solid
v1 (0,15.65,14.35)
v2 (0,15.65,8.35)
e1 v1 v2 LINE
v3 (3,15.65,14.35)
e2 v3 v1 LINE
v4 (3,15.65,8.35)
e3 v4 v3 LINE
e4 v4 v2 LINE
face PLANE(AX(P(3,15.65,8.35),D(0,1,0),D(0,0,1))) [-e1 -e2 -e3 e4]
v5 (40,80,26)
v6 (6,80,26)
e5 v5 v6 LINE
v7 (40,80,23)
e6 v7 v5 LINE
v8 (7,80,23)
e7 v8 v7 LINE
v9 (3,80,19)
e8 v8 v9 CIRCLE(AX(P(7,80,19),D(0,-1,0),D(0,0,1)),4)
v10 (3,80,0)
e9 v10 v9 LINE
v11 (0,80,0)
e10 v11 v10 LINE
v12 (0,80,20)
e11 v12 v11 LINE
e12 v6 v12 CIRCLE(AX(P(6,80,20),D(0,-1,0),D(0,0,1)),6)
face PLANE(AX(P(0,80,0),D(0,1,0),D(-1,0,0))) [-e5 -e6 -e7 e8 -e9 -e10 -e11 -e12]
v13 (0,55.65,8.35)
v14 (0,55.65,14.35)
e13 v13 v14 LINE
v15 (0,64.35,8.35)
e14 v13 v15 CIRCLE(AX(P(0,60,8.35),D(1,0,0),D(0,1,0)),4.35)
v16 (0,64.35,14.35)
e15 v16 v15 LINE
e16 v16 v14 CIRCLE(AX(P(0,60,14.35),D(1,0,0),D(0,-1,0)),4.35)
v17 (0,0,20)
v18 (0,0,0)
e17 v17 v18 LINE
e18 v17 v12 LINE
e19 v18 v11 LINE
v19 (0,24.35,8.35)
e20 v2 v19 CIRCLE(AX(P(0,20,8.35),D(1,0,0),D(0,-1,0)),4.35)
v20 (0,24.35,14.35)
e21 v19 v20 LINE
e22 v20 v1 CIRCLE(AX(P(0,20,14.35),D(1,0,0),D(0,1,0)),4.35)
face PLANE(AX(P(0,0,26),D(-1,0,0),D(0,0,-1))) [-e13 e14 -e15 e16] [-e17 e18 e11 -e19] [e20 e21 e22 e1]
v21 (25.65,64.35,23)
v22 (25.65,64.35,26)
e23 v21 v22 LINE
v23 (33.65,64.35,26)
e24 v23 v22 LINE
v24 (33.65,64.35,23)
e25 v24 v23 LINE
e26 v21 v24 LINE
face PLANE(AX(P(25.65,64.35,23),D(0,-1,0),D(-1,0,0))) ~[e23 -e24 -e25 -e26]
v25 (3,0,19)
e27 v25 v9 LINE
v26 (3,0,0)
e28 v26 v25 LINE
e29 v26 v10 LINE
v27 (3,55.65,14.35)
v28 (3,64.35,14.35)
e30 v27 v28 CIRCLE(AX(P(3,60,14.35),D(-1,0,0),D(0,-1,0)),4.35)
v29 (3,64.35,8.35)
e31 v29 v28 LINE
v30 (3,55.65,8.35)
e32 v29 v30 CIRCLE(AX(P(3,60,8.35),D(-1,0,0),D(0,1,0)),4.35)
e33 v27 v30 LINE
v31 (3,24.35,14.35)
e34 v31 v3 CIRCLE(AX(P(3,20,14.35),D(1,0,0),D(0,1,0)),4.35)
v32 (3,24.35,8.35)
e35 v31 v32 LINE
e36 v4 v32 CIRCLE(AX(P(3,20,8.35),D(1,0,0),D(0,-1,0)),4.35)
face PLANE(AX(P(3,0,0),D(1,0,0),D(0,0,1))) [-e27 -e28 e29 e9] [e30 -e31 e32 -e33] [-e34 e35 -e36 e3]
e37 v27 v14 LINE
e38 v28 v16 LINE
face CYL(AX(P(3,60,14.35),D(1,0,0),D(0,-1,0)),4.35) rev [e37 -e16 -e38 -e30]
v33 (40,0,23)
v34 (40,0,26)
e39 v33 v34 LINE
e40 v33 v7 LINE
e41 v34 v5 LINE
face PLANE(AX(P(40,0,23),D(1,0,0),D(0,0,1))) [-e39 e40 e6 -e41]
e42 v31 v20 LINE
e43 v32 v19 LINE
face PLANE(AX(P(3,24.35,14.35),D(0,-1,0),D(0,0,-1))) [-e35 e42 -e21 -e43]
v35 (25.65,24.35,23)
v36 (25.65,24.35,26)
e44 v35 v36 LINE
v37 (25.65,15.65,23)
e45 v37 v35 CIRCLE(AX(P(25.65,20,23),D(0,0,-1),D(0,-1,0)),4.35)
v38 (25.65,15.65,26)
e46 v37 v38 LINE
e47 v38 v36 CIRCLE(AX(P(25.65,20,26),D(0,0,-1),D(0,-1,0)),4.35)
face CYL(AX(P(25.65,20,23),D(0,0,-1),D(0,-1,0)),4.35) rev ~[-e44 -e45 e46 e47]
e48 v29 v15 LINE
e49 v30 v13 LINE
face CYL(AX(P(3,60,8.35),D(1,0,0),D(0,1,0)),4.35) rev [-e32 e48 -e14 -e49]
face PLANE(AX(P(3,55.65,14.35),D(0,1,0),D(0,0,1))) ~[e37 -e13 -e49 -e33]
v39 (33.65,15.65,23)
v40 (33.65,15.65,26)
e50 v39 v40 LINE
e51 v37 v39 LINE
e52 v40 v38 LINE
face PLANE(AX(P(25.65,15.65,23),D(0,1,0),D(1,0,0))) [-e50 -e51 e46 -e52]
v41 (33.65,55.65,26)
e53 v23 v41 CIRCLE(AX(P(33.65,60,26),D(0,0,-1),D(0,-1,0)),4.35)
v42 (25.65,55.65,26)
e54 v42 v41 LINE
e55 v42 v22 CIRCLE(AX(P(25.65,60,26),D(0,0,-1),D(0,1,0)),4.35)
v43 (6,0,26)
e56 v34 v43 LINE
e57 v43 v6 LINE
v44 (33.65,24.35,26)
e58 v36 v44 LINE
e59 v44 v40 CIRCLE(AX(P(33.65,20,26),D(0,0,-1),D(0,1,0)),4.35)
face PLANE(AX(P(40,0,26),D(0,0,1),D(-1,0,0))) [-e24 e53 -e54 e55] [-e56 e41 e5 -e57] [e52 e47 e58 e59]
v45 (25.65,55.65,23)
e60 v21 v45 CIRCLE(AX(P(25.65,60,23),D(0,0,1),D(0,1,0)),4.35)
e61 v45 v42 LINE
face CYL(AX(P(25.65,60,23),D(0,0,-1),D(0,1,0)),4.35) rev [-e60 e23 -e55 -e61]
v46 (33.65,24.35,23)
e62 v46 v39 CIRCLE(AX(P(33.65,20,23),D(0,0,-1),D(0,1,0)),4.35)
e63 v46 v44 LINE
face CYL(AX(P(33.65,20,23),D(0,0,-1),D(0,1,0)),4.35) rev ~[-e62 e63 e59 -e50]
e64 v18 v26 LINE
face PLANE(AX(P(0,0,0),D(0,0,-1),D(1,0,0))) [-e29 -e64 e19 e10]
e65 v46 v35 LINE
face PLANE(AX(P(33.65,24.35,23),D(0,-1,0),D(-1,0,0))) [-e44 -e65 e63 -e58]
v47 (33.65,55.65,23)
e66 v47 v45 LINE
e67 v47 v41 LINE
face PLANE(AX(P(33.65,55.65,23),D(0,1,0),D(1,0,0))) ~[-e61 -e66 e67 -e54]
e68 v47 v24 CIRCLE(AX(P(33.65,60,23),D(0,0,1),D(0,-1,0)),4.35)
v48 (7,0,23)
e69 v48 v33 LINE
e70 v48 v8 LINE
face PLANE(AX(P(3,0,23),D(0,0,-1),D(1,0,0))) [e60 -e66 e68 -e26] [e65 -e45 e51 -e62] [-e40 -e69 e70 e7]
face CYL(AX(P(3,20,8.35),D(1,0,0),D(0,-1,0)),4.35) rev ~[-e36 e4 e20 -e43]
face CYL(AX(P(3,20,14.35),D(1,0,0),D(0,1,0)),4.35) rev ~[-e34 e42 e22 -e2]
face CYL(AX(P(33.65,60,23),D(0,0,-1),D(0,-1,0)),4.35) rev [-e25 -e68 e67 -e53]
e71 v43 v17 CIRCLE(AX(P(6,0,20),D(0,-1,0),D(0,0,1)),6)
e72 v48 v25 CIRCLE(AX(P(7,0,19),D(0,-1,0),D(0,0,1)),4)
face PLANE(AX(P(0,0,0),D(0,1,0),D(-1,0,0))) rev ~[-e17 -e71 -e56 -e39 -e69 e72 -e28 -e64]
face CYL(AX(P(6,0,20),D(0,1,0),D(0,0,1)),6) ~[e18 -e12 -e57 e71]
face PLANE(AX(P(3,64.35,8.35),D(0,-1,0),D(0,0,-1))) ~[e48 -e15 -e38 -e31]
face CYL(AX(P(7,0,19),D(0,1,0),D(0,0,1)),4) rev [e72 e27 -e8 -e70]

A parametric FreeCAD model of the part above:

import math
import FreeCAD as App
import Part
import Sketcher
Q = App.Units.Quantity


def edges_at(feature, points):
    """Names of the edges that pass closest to the given points."""
    edges = feature.Shape.Edges
    near = lambda p: min(range(len(edges)), key=lambda i: edges[i].distToShape(Part.Vertex(*p))[0])
    return sorted({f"Edge{near(p) + 1}" for p in points})


def add_polygon(sketch, points):
    """Adds a closed chain of lines whose ends are joined by coincident constraints."""
    first, n = sketch.GeometryCount, len(points)
    for a, b in zip(points, points[1:] + points[:1]):
        sketch.addGeometry(Part.LineSegment(App.Vector(*a, 0), App.Vector(*b, 0)), False)
    for i in range(n):
        sketch.addConstraint(Sketcher.Constraint("Coincident", first + i, 2, first + (i + 1) % n, 1))

doc = App.newDocument("Part")
body = doc.addObject("PartDesign::Body", "Body")

# Sketch on XZ plane
sketch1 = body.newObject("Sketcher::SketchObject", "Sketch")
sketch1.AttachmentSupport = (doc.getObject("XZ_Plane"), [""])
sketch1.MapMode = "FlatFace"
add_polygon(sketch1, [(3, 0), (0, 0), (0, 26), (40, 26), (40, 23), (3, 23)])  # lines 0-5
sketch1.addConstraint(Sketcher.Constraint("Horizontal", 0))
sketch1.addConstraint(Sketcher.Constraint("Vertical", 1))
sketch1.addConstraint(Sketcher.Constraint("Horizontal", 2))
sketch1.addConstraint(Sketcher.Constraint("Vertical", 3))
sketch1.addConstraint(Sketcher.Constraint("Horizontal", 4))
sketch1.addConstraint(Sketcher.Constraint("Vertical", 5))
sketch1.addConstraint(Sketcher.Constraint("Coincident", 0, 2, -1, 1))
sketch1.addConstraint(Sketcher.Constraint("Equal", 0, 3))
sketch1.addConstraint(Sketcher.Constraint("DistanceX", 0, 2, 0, 1, Q("3 mm")))
sketch1.addConstraint(Sketcher.Constraint("DistanceX", 2, 1, 2, 2, Q("40 mm")))
sketch1.addConstraint(Sketcher.Constraint("DistanceY", 1, 1, 1, 2, Q("26 mm")))
pad1 = body.newObject("PartDesign::Pad", "Pad")
pad1.Profile = sketch1
pad1.Length = 80
pad1.Reversed = True
doc.recompute()

fillet = body.newObject("PartDesign::Fillet", "Fillet")
fillet.Base = (pad1, edges_at(pad1, [(0, 40, 26)]))
fillet.Radius = 6
doc.recompute()

fillet2 = body.newObject("PartDesign::Fillet", "Fillet001")
fillet2.Base = (fillet, edges_at(fillet, [(3, 40, 23)]))
fillet2.Radius = 4

# Sketch on YZ plane
sketch2 = body.newObject("Sketcher::SketchObject", "Sketch001")
sketch2.AttachmentSupport = (doc.getObject("YZ_Plane"), [""])
sketch2.MapMode = "FlatFace"
sketch2.AttachmentOffset = App.Placement(App.Vector(0, 0, 3), App.Rotation())
sketch2.addGeometry(Part.LineSegment(App.Vector(24.35, 8.35, 0), App.Vector(24.35, 14.35, 0)), False)
sketch2.addGeometry(Part.ArcOfCircle(Part.Circle(App.Vector(20, 14.35, 0), App.Vector(0, 0, 1), 4.35), math.radians(0), math.radians(180)), False)
sketch2.addGeometry(Part.LineSegment(App.Vector(15.65, 14.35, 0), App.Vector(15.65, 8.35, 0)), False)
sketch2.addGeometry(Part.ArcOfCircle(Part.Circle(App.Vector(20, 8.35, 0), App.Vector(0, 0, 1), 4.35), math.radians(180), math.radians(360)), False)
sketch2.addConstraint(Sketcher.Constraint("Tangent", 0, 2, 1, 1))
sketch2.addConstraint(Sketcher.Constraint("Tangent", 1, 2, 2, 1))
sketch2.addConstraint(Sketcher.Constraint("Tangent", 2, 2, 3, 1))
sketch2.addConstraint(Sketcher.Constraint("Tangent", 3, 2, 0, 1))
sketch2.addConstraint(Sketcher.Constraint("Vertical", 0))
sketch2.addConstraint(Sketcher.Constraint("Vertical", 2))
sketch2.addConstraint(Sketcher.Constraint("DistanceY", 0, 1, 0, 2, Q("6 mm")))
sketch2.addConstraint(Sketcher.Constraint("Radius", 1, Q("4.35 mm")))
sketch2.addConstraint(Sketcher.Constraint("DistanceX", -1, 1, 1, 3, Q("20 mm")))
sketch2.addConstraint(Sketcher.Constraint("DistanceY", -1, 1, 1, 3, Q("14.35 mm")))
pocket1 = body.newObject("PartDesign::Pocket", "Pocket")
pocket1.Profile = sketch2
pocket1.Type = "ThroughAll"
doc.recompute()

datumplane = body.newObject("PartDesign::Plane", "DatumPlane")
datumplane.AttachmentSupport = (doc.getObject("XZ_Plane"), [""])
datumplane.MapMode = "FlatFace"
datumplane.AttachmentOffset = App.Placement(App.Vector(0, 0, -40), App.Rotation())
mirrored = body.newObject("PartDesign::Mirrored", "Mirrored")
mirrored.Originals = [pocket1]
mirrored.MirrorPlane = (datumplane, [""])
body.Tip = mirrored

# Sketch on XY plane
sketch3 = body.newObject("Sketcher::SketchObject", "Sketch002")
sketch3.AttachmentSupport = (doc.getObject("XY_Plane"), [""])
sketch3.MapMode = "FlatFace"
sketch3.AttachmentOffset = App.Placement(App.Vector(0, 0, 23), App.Rotation())
sketch3.addGeometry(Part.LineSegment(App.Vector(25.65, 24.35, 0), App.Vector(33.65, 24.35, 0)), False)
sketch3.addGeometry(Part.ArcOfCircle(Part.Circle(App.Vector(33.65, 20, 0), App.Vector(0, 0, 1), 4.35), math.radians(-90), math.radians(90)), False)
sketch3.addGeometry(Part.LineSegment(App.Vector(33.65, 15.65, 0), App.Vector(25.65, 15.65, 0)), False)
sketch3.addGeometry(Part.ArcOfCircle(Part.Circle(App.Vector(25.65, 20, 0), App.Vector(0, 0, 1), 4.35), math.radians(90), math.radians(270)), False)
sketch3.addConstraint(Sketcher.Constraint("Tangent", 0, 2, 1, 2))
sketch3.addConstraint(Sketcher.Constraint("Tangent", 1, 1, 2, 1))
sketch3.addConstraint(Sketcher.Constraint("Tangent", 2, 2, 3, 2))
sketch3.addConstraint(Sketcher.Constraint("Tangent", 3, 1, 0, 1))
sketch3.addConstraint(Sketcher.Constraint("Horizontal", 0))
sketch3.addConstraint(Sketcher.Constraint("Horizontal", 2))
sketch3.addConstraint(Sketcher.Constraint("DistanceX", 0, 1, 0, 2, Q("8 mm")))
sketch3.addConstraint(Sketcher.Constraint("Radius", 1, Q("4.35 mm")))
sketch3.addConstraint(Sketcher.Constraint("DistanceY", -1, 1, 1, 3, Q("20 mm")))
sketch3.addConstraint(Sketcher.Constraint("DistanceX", -1, 1, 1, 3, Q("33.65 mm")))
pocket2 = body.newObject("PartDesign::Pocket", "Pocket001")
pocket2.Profile = sketch3
pocket2.Length = 10
pocket2.Reversed = True
doc.recompute()

datumplane2 = body.newObject("PartDesign::Plane", "DatumPlane001")
datumplane2.AttachmentSupport = (doc.getObject("XZ_Plane"), [""])
datumplane2.MapMode = "FlatFace"
datumplane2.AttachmentOffset = App.Placement(App.Vector(0, 0, -40), App.Rotation())
mirrored2 = body.newObject("PartDesign::Mirrored", "Mirrored001")
mirrored2.Originals = [pocket2]
mirrored2.MirrorPlane = (datumplane2, [""])
body.Tip = mirrored2

doc.recompute()
